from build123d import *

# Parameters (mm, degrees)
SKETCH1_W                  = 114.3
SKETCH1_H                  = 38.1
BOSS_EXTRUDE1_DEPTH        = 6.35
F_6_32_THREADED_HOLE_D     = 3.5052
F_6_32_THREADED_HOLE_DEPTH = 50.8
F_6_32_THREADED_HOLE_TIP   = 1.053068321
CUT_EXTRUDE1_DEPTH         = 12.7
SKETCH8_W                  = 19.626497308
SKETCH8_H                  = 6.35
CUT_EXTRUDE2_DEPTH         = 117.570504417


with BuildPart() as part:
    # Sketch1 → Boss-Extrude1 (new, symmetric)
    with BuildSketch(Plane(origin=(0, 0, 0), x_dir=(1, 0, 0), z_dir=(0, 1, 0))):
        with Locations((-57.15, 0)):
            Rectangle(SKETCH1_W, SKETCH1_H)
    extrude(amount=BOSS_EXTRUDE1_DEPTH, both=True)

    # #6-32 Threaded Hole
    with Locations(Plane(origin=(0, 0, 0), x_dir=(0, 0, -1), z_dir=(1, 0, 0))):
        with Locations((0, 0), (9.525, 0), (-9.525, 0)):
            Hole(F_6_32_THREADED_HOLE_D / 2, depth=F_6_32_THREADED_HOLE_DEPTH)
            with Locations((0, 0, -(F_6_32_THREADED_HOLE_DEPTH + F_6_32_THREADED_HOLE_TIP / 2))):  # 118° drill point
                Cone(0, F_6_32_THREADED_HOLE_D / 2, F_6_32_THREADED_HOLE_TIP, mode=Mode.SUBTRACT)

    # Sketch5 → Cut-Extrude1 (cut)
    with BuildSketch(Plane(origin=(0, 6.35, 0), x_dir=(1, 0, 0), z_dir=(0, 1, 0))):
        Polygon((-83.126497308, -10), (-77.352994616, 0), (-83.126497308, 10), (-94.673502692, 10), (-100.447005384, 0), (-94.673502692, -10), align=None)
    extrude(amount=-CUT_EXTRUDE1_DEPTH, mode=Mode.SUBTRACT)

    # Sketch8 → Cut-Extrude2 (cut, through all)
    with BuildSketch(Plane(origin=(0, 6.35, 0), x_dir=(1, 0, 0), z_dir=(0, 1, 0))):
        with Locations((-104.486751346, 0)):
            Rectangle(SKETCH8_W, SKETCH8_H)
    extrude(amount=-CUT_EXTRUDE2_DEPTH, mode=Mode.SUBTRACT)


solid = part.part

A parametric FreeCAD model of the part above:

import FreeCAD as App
import Part
import Sketcher
Q = App.Units.Quantity

doc = App.newDocument("Part")
params = doc.addObject("Spreadsheet::Sheet", "Params")
for row, (alias, value) in enumerate([
    ("sketch1_width", "4.5 in"),
    ("sketch1_height", "1.5 in"),
    ("pad1_length", "0.5 in"),
    ("sketch2_diameter", "0.138 in"),
    ("hole_diameter", "0.138 in"),
    ("hole_depth", "2 in"),
    ("pocket1_length", "0.5 in"),
    ("sketch4_height", "0.25 in"),
], start=1):
    params.set(f"A{row}", alias)
    params.set(f"B{row}", "=" + value)
    params.setAlias(f"B{row}", alias)

body = doc.addObject("PartDesign::Body", "Body")

sketch1 = body.newObject("Sketcher::SketchObject", "Sketch")
sketch1.AttachmentSupport = (doc.getObject("XZ_Plane"), [""])
sketch1.MapMode = "FlatFace"
sketch1.addGeometry(Part.LineSegment(App.Vector(-114, -19, 0), App.Vector(-114, 19, 0)), False)
sketch1.addGeometry(Part.LineSegment(App.Vector(-114, 19, 0), App.Vector(0, 19, 0)), False)
sketch1.addGeometry(Part.LineSegment(App.Vector(0, 19, 0), App.Vector(0, -19, 0)), False)
sketch1.addGeometry(Part.LineSegment(App.Vector(0, -19, 0), App.Vector(-114, -19, 0)), False)
sketch1.addConstraint(Sketcher.Constraint("Coincident", 0, 2, 1, 1))
sketch1.addConstraint(Sketcher.Constraint("Coincident", 1, 2, 2, 1))
sketch1.addConstraint(Sketcher.Constraint("Coincident", 2, 2, 3, 1))
sketch1.addConstraint(Sketcher.Constraint("Coincident", 3, 2, 0, 1))
sketch1.addConstraint(Sketcher.Constraint("Vertical", 0))
sketch1.addConstraint(Sketcher.Constraint("Horizontal", 1))
sketch1.addConstraint(Sketcher.Constraint("Vertical", 2))
sketch1.addConstraint(Sketcher.Constraint("Horizontal", 3))
sketch1.addConstraint(Sketcher.Constraint("Symmetric", 1, 2, 2, 2, -1, 1))
sketch1.addConstraint(Sketcher.Constraint("DistanceX", 1, 1, 1, 2, Q("4.5 in")))
sketch1.addConstraint(Sketcher.Constraint("DistanceY", 0, 1, 0, 2, Q("1.5 in")))
sketch1.setExpression("Constraints[9]", "Params.sketch1_width")
sketch1.setExpression("Constraints[10]", "Params.sketch1_height")
pad1 = body.newObject("PartDesign::Pad", "Pad")
pad1.Profile = sketch1
pad1.setExpression("Length", "Params.pad1_length")
pad1.Midplane = True

sketch2 = body.newObject("Sketcher::SketchObject", "Sketch001")
sketch2.AttachmentSupport = (doc.getObject("YZ_Plane"), [""])
sketch2.MapMode = "FlatFace"
sketch2.addGeometry(Part.Circle(App.Vector(0, 0, 0), App.Vector(0, 0, 1), 1.8), False)
sketch2.addGeometry(Part.Circle(App.Vector(0, -9.5, 0), App.Vector(0, 0, 1), 1.8), False)
sketch2.addGeometry(Part.Circle(App.Vector(0, 9.5, 0), App.Vector(0, 0, 1), 1.8), False)
sketch2.addConstraint(Sketcher.Constraint("Coincident", 0, 3, -1, 1))
sketch2.addConstraint(Sketcher.Constraint("Equal", 0, 1))
sketch2.addConstraint(Sketcher.Constraint("Equal", 1, 2))
sketch2.addConstraint(Sketcher.Constraint("Symmetric", 1, 3, 2, 3, -1, 1))
sketch2.addConstraint(Sketcher.Constraint("PointOnObject", 1, 3, -2))
sketch2.addConstraint(Sketcher.Constraint("Diameter", 0, Q("0.138 in")))
sketch2.addConstraint(Sketcher.Constraint("DistanceY", 1, 3, 2, 3, Q("0.75 in")))
sketch2.setExpression("Constraints[5]", "Params.sketch2_diameter")
doc.recompute()
hole = body.newObject("PartDesign::Hole", "Hole")
hole.Profile = sketch2
hole.ThreadType = "None"
hole.setExpression("Diameter", "Params.hole_diameter")
hole.DepthType = "Dimension"
hole.setExpression("Depth", "Params.hole_depth")
hole.DrillPoint = "Angled"
hole.DrillPointAngle = 118

sketch3 = body.newObject("Sketcher::SketchObject", "Sketch002")
sketch3.AttachmentSupport = (doc.getObject("XZ_Plane"), [""])
sketch3.MapMode = "FlatFace"
sketch3.AttachmentOffset = App.Placement(App.Vector(0, 0, -0.25 * 25.4), App.Rotation())
sketch3.addGeometry(Part.LineSegment(App.Vector(-83, 10, 0), App.Vector(-77, 0, 0)), False)
sketch3.addGeometry(Part.LineSegment(App.Vector(-77, 0, 0), App.Vector(-83, -10, 0)), False)
sketch3.addGeometry(Part.LineSegment(App.Vector(-83, -10, 0), App.Vector(-95, -10, 0)), False)
sketch3.addGeometry(Part.LineSegment(App.Vector(-95, -10, 0), App.Vector(-100, 0, 0)), False)
sketch3.addGeometry(Part.LineSegment(App.Vector(-100, 0, 0), App.Vector(-95, 10, 0)), False)
sketch3.addGeometry(Part.LineSegment(App.Vector(-95, 10, 0), App.Vector(-83, 10, 0)), False)
sketch3.addConstraint(Sketcher.Constraint("Coincident", 0, 2, 1, 1))
sketch3.addConstraint(Sketcher.Constraint("Coincident", 1, 2, 2, 1))
sketch3.addConstraint(Sketcher.Constraint("Coincident", 2, 2, 3, 1))
sketch3.addConstraint(Sketcher.Constraint("Coincident", 3, 2, 4, 1))
sketch3.addConstraint(Sketcher.Constraint("Coincident", 4, 2, 5, 1))
sketch3.addConstraint(Sketcher.Constraint("Coincident", 5, 2, 0, 1))
sketch3.addConstraint(Sketcher.Constraint("Horizontal", 2))
sketch3.addConstraint(Sketcher.Constraint("Horizontal", 5))
sketch3.addConstraint(Sketcher.Constraint("Symmetric", 2, 2, 4, 2, -1))
sketch3.addConstraint(Sketcher.Constraint("PointOnObject", 0, 2, -1))
sketch3.addConstraint(Sketcher.Constraint("PointOnObject", 3, 2, -1))
sketch3.addConstraint(Sketcher.Constraint("Parallel", 0, 3))
sketch3.addConstraint(Sketcher.Constraint("Parallel", 1, 4))
sketch3.addConstraint(Sketcher.Constraint("Angle", 0, Q("-60 deg")))
sketch3.addConstraint(Sketcher.Constraint("DistanceY", 1, 2, -1, 1, Q("10 mm")))
sketch3.addConstraint(Sketcher.Constraint("DistanceX", 2, 2, 2, 1, Q("11.547005 mm")))
sketch3.addConstraint(Sketcher.Constraint("DistanceX", 0, 2, -1, 1, Q("77.352995 mm")))
pocket1 = body.newObject("PartDesign::Pocket", "Pocket")
pocket1.Profile = sketch3
pocket1.setExpression("Length", "Params.pocket1_length")
pocket1.Reversed = True

sketch4 = body.newObject("Sketcher::SketchObject", "Sketch003")
sketch4.AttachmentSupport = (doc.getObject("XZ_Plane"), [""])
sketch4.MapMode = "FlatFace"
sketch4.AttachmentOffset = App.Placement(App.Vector(0, 0, -0.25 * 25.4), App.Rotation())
sketch4.addGeometry(Part.LineSegment(App.Vector(-114, -3, 0), App.Vector(-114, 3, 0)), False)
sketch4.addGeometry(Part.LineSegment(App.Vector(-114, 3, 0), App.Vector(-95, 3, 0)), False)
sketch4.addGeometry(Part.LineSegment(App.Vector(-95, 3, 0), App.Vector(-95, -3, 0)), False)
sketch4.addGeometry(Part.LineSegment(App.Vector(-95, -3, 0), App.Vector(-114, -3, 0)), False)
sketch4.addConstraint(Sketcher.Constraint("Coincident", 0, 2, 1, 1))
sketch4.addConstraint(Sketcher.Constraint("Coincident", 1, 2, 2, 1))
sketch4.addConstraint(Sketcher.Constraint("Coincident", 2, 2, 3, 1))
sketch4.addConstraint(Sketcher.Constraint("Coincident", 3, 2, 0, 1))
sketch4.addConstraint(Sketcher.Constraint("Vertical", 0))
sketch4.addConstraint(Sketcher.Constraint("Horizontal", 1))
sketch4.addConstraint(Sketcher.Constraint("Vertical", 2))
sketch4.addConstraint(Sketcher.Constraint("Horizontal", 3))
sketch4.addConstraint(Sketcher.Constraint("DistanceY", 0, 1, 0, 2, Q("0.25 in")))
sketch4.addConstraint(Sketcher.Constraint("DistanceX", 0, 2, -1, 1, Q("4.5 in")))
sketch4.addConstraint(Sketcher.Constraint("DistanceY", -1, 1, 0, 2, Q("0.125 in")))
sketch4.addConstraint(Sketcher.Constraint("DistanceX", 1, 1, 1, 2, Q("19.626497 mm")))
sketch4.setExpression("Constraints[8]", "Params.sketch4_height")
pocket2 = body.newObject("PartDesign::Pocket", "Pocket001")
pocket2.Profile = sketch4
pocket2.Type = "ThroughAll"
pocket2.Reversed = True

doc.recompute()
